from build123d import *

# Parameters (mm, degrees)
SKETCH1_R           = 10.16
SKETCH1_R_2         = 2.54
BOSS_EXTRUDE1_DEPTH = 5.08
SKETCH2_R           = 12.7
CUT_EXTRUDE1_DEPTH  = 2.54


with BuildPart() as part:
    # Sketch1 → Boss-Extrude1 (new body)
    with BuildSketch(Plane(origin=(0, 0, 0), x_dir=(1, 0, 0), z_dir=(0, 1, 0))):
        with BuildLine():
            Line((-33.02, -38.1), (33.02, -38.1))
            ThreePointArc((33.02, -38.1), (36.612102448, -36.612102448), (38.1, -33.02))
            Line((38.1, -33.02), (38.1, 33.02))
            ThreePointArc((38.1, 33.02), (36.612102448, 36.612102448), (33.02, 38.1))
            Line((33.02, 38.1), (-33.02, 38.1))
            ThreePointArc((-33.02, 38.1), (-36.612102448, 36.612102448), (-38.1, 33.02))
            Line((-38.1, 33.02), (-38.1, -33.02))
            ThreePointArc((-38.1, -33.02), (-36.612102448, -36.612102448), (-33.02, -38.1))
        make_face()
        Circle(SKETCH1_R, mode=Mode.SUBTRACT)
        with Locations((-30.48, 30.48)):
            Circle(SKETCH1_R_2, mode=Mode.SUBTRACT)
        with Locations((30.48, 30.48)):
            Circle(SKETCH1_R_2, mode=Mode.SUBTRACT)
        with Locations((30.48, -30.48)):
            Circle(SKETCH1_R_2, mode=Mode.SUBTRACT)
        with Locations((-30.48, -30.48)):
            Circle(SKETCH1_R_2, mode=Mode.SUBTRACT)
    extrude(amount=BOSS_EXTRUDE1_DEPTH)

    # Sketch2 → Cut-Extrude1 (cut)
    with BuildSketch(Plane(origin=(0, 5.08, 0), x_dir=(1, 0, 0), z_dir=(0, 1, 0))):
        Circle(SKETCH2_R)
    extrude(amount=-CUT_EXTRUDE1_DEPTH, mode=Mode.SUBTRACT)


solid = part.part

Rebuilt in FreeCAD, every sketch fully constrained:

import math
import FreeCAD as App
import Part
import Sketcher

V = App.Vector
Q = App.Units.Quantity

doc = App.newDocument("Part")
params = doc.addObject("Spreadsheet::Sheet", "Params")
for row, (alias, value) in enumerate([
    ("sketch1_diameter", "0.2 in"),
    ("sketch1_diameter2", "0.8 in"),
    ("sketch1_radius", "0.2 in"),
    ("sketch1_width", "2.6 in"),
    ("pad1_length", "0.2 in"),
    ("sketch2_diameter", "1 in"),
    ("pocket1_length", "0.1 in"),
], start=1):
    params.set(f"A{row}", alias)
    params.set(f"B{row}", "=" + value)
    params.setAlias(f"B{row}", alias)

body = doc.addObject("PartDesign::Body", "Body")

sketch1 = body.newObject("Sketcher::SketchObject", "Sketch")
sketch1.AttachmentSupport = (doc.getObject("XZ_Plane"), [""])
sketch1.MapMode = "FlatFace"
sketch1.addGeometry([
    Part.LineSegment(V(-33.02, 38.1, 0), V(33.02, 38.1, 0)),
    Part.ArcOfCircle(Part.Circle(V(33.02, 33.02, 0), V(0, 0, 1), 5.08), math.radians(0), math.radians(90)),
    Part.LineSegment(V(38.1, 33.02, 0), V(38.1, -33.02, 0)),
    Part.ArcOfCircle(Part.Circle(V(33.02, -33.02, 0), V(0, 0, 1), 5.08), math.radians(-90), math.radians(0)),
    Part.LineSegment(V(33.02, -38.1, 0), V(-33.02, -38.1, 0)),
    Part.ArcOfCircle(Part.Circle(V(-33.02, -33.02, 0), V(0, 0, 1), 5.08), math.radians(-180), math.radians(-90)),
    Part.LineSegment(V(-38.1, -33.02, 0), V(-38.1, 33.02, 0)),
    Part.ArcOfCircle(Part.Circle(V(-33.02, 33.02, 0), V(0, 0, 1), 5.08), math.radians(90), math.radians(180)),
    Part.Circle(V(-30.48, 30.48, 0), V(0, 0, 1), 2.54),
    Part.Circle(V(30.48, 30.48, 0), V(0, 0, 1), 2.54),
    Part.Circle(V(0, 0, 0), V(0, 0, 1), 10.16),
    Part.Circle(V(-30.48, -30.48, 0), V(0, 0, 1), 2.54),
    Part.Circle(V(30.48, -30.48, 0), V(0, 0, 1), 2.54),
], False)
sketch1.addConstraint([
    Sketcher.Constraint("Tangent", 0, 2, 1, 2),
    Sketcher.Constraint("Tangent", 1, 1, 2, 1),
    Sketcher.Constraint("Tangent", 2, 2, 3, 2),
    Sketcher.Constraint("Tangent", 3, 1, 4, 1),
    Sketcher.Constraint("Tangent", 4, 2, 5, 2),
    Sketcher.Constraint("Tangent", 5, 1, 6, 1),
    Sketcher.Constraint("Tangent", 6, 2, 7, 2),
    Sketcher.Constraint("Tangent", 7, 1, 0, 1),
    Sketcher.Constraint("Horizontal", 0),
    Sketcher.Constraint("Vertical", 2),
    Sketcher.Constraint("Horizontal", 4),
    Sketcher.Constraint("Vertical", 6),
    Sketcher.Constraint("Coincident", 10, 3, -1, 1),
    Sketcher.Constraint("Equal", 1, 3),
    Sketcher.Constraint("Equal", 3, 5),
    Sketcher.Constraint("Equal", 5, 7),
    Sketcher.Constraint("Equal", 8, 9),
    Sketcher.Constraint("Equal", 9, 11),
    Sketcher.Constraint("Equal", 11, 12),
    Sketcher.Constraint("Symmetric", 1, 3, 5, 3, -1, 1),
    Sketcher.Constraint("Symmetric", 9, 3, 11, 3, -1, 1),
    Sketcher.Constraint("Symmetric", 8, 3, 12, 3, -1, 1),
    Sketcher.Constraint("Symmetric", 8, 3, 9, 3, -2),
    Sketcher.Constraint("Equal", 4, 2),
    Sketcher.Constraint("Diameter", 8, Q("0.2 in")),
    Sketcher.Constraint("Diameter", 10, Q("0.8 in")),
    Sketcher.Constraint("Radius", 1, Q("0.2 in")),
    Sketcher.Constraint("DistanceX", 0, 1, 0, 2, Q("2.6 in")),
    Sketcher.Constraint("DistanceX", 8, 3, -1, 1, Q("1.2 in")),
    Sketcher.Constraint("DistanceY", -1, 1, 8, 3, Q("1.2 in")),
])
sketch1.setExpression("Constraints[24]", "Params.sketch1_diameter")
sketch1.setExpression("Constraints[25]", "Params.sketch1_diameter2")
sketch1.setExpression("Constraints[26]", "Params.sketch1_radius")
sketch1.setExpression("Constraints[27]", "Params.sketch1_width")
pad1 = body.newObject("PartDesign::Pad", "Pad")
pad1.Profile = sketch1
pad1.setExpression("Length", "Params.pad1_length")
pad1.Reversed = True

sketch2 = body.newObject("Sketcher::SketchObject", "Sketch001")
sketch2.AttachmentSupport = (doc.getObject("XZ_Plane"), [""])
sketch2.MapMode = "FlatFace"
sketch2.AttachmentOffset = App.Placement(V(0, 0, -0.2 * 25.4), App.Rotation())
sketch2.addGeometry(Part.Circle(V(0, 0, 0), V(0, 0, 1), 12.7), False)
sketch2.addConstraint([
    Sketcher.Constraint("Coincident", 0, 3, -1, 1),
    Sketcher.Constraint("Diameter", 0, Q("1 in")),
])
sketch2.setExpression("Constraints[1]", "Params.sketch2_diameter")
pocket1 = body.newObject("PartDesign::Pocket", "Pocket")
pocket1.Profile = sketch2
pocket1.setExpression("Length", "Params.pocket1_length")
pocket1.Reversed = True

doc.recompute()
